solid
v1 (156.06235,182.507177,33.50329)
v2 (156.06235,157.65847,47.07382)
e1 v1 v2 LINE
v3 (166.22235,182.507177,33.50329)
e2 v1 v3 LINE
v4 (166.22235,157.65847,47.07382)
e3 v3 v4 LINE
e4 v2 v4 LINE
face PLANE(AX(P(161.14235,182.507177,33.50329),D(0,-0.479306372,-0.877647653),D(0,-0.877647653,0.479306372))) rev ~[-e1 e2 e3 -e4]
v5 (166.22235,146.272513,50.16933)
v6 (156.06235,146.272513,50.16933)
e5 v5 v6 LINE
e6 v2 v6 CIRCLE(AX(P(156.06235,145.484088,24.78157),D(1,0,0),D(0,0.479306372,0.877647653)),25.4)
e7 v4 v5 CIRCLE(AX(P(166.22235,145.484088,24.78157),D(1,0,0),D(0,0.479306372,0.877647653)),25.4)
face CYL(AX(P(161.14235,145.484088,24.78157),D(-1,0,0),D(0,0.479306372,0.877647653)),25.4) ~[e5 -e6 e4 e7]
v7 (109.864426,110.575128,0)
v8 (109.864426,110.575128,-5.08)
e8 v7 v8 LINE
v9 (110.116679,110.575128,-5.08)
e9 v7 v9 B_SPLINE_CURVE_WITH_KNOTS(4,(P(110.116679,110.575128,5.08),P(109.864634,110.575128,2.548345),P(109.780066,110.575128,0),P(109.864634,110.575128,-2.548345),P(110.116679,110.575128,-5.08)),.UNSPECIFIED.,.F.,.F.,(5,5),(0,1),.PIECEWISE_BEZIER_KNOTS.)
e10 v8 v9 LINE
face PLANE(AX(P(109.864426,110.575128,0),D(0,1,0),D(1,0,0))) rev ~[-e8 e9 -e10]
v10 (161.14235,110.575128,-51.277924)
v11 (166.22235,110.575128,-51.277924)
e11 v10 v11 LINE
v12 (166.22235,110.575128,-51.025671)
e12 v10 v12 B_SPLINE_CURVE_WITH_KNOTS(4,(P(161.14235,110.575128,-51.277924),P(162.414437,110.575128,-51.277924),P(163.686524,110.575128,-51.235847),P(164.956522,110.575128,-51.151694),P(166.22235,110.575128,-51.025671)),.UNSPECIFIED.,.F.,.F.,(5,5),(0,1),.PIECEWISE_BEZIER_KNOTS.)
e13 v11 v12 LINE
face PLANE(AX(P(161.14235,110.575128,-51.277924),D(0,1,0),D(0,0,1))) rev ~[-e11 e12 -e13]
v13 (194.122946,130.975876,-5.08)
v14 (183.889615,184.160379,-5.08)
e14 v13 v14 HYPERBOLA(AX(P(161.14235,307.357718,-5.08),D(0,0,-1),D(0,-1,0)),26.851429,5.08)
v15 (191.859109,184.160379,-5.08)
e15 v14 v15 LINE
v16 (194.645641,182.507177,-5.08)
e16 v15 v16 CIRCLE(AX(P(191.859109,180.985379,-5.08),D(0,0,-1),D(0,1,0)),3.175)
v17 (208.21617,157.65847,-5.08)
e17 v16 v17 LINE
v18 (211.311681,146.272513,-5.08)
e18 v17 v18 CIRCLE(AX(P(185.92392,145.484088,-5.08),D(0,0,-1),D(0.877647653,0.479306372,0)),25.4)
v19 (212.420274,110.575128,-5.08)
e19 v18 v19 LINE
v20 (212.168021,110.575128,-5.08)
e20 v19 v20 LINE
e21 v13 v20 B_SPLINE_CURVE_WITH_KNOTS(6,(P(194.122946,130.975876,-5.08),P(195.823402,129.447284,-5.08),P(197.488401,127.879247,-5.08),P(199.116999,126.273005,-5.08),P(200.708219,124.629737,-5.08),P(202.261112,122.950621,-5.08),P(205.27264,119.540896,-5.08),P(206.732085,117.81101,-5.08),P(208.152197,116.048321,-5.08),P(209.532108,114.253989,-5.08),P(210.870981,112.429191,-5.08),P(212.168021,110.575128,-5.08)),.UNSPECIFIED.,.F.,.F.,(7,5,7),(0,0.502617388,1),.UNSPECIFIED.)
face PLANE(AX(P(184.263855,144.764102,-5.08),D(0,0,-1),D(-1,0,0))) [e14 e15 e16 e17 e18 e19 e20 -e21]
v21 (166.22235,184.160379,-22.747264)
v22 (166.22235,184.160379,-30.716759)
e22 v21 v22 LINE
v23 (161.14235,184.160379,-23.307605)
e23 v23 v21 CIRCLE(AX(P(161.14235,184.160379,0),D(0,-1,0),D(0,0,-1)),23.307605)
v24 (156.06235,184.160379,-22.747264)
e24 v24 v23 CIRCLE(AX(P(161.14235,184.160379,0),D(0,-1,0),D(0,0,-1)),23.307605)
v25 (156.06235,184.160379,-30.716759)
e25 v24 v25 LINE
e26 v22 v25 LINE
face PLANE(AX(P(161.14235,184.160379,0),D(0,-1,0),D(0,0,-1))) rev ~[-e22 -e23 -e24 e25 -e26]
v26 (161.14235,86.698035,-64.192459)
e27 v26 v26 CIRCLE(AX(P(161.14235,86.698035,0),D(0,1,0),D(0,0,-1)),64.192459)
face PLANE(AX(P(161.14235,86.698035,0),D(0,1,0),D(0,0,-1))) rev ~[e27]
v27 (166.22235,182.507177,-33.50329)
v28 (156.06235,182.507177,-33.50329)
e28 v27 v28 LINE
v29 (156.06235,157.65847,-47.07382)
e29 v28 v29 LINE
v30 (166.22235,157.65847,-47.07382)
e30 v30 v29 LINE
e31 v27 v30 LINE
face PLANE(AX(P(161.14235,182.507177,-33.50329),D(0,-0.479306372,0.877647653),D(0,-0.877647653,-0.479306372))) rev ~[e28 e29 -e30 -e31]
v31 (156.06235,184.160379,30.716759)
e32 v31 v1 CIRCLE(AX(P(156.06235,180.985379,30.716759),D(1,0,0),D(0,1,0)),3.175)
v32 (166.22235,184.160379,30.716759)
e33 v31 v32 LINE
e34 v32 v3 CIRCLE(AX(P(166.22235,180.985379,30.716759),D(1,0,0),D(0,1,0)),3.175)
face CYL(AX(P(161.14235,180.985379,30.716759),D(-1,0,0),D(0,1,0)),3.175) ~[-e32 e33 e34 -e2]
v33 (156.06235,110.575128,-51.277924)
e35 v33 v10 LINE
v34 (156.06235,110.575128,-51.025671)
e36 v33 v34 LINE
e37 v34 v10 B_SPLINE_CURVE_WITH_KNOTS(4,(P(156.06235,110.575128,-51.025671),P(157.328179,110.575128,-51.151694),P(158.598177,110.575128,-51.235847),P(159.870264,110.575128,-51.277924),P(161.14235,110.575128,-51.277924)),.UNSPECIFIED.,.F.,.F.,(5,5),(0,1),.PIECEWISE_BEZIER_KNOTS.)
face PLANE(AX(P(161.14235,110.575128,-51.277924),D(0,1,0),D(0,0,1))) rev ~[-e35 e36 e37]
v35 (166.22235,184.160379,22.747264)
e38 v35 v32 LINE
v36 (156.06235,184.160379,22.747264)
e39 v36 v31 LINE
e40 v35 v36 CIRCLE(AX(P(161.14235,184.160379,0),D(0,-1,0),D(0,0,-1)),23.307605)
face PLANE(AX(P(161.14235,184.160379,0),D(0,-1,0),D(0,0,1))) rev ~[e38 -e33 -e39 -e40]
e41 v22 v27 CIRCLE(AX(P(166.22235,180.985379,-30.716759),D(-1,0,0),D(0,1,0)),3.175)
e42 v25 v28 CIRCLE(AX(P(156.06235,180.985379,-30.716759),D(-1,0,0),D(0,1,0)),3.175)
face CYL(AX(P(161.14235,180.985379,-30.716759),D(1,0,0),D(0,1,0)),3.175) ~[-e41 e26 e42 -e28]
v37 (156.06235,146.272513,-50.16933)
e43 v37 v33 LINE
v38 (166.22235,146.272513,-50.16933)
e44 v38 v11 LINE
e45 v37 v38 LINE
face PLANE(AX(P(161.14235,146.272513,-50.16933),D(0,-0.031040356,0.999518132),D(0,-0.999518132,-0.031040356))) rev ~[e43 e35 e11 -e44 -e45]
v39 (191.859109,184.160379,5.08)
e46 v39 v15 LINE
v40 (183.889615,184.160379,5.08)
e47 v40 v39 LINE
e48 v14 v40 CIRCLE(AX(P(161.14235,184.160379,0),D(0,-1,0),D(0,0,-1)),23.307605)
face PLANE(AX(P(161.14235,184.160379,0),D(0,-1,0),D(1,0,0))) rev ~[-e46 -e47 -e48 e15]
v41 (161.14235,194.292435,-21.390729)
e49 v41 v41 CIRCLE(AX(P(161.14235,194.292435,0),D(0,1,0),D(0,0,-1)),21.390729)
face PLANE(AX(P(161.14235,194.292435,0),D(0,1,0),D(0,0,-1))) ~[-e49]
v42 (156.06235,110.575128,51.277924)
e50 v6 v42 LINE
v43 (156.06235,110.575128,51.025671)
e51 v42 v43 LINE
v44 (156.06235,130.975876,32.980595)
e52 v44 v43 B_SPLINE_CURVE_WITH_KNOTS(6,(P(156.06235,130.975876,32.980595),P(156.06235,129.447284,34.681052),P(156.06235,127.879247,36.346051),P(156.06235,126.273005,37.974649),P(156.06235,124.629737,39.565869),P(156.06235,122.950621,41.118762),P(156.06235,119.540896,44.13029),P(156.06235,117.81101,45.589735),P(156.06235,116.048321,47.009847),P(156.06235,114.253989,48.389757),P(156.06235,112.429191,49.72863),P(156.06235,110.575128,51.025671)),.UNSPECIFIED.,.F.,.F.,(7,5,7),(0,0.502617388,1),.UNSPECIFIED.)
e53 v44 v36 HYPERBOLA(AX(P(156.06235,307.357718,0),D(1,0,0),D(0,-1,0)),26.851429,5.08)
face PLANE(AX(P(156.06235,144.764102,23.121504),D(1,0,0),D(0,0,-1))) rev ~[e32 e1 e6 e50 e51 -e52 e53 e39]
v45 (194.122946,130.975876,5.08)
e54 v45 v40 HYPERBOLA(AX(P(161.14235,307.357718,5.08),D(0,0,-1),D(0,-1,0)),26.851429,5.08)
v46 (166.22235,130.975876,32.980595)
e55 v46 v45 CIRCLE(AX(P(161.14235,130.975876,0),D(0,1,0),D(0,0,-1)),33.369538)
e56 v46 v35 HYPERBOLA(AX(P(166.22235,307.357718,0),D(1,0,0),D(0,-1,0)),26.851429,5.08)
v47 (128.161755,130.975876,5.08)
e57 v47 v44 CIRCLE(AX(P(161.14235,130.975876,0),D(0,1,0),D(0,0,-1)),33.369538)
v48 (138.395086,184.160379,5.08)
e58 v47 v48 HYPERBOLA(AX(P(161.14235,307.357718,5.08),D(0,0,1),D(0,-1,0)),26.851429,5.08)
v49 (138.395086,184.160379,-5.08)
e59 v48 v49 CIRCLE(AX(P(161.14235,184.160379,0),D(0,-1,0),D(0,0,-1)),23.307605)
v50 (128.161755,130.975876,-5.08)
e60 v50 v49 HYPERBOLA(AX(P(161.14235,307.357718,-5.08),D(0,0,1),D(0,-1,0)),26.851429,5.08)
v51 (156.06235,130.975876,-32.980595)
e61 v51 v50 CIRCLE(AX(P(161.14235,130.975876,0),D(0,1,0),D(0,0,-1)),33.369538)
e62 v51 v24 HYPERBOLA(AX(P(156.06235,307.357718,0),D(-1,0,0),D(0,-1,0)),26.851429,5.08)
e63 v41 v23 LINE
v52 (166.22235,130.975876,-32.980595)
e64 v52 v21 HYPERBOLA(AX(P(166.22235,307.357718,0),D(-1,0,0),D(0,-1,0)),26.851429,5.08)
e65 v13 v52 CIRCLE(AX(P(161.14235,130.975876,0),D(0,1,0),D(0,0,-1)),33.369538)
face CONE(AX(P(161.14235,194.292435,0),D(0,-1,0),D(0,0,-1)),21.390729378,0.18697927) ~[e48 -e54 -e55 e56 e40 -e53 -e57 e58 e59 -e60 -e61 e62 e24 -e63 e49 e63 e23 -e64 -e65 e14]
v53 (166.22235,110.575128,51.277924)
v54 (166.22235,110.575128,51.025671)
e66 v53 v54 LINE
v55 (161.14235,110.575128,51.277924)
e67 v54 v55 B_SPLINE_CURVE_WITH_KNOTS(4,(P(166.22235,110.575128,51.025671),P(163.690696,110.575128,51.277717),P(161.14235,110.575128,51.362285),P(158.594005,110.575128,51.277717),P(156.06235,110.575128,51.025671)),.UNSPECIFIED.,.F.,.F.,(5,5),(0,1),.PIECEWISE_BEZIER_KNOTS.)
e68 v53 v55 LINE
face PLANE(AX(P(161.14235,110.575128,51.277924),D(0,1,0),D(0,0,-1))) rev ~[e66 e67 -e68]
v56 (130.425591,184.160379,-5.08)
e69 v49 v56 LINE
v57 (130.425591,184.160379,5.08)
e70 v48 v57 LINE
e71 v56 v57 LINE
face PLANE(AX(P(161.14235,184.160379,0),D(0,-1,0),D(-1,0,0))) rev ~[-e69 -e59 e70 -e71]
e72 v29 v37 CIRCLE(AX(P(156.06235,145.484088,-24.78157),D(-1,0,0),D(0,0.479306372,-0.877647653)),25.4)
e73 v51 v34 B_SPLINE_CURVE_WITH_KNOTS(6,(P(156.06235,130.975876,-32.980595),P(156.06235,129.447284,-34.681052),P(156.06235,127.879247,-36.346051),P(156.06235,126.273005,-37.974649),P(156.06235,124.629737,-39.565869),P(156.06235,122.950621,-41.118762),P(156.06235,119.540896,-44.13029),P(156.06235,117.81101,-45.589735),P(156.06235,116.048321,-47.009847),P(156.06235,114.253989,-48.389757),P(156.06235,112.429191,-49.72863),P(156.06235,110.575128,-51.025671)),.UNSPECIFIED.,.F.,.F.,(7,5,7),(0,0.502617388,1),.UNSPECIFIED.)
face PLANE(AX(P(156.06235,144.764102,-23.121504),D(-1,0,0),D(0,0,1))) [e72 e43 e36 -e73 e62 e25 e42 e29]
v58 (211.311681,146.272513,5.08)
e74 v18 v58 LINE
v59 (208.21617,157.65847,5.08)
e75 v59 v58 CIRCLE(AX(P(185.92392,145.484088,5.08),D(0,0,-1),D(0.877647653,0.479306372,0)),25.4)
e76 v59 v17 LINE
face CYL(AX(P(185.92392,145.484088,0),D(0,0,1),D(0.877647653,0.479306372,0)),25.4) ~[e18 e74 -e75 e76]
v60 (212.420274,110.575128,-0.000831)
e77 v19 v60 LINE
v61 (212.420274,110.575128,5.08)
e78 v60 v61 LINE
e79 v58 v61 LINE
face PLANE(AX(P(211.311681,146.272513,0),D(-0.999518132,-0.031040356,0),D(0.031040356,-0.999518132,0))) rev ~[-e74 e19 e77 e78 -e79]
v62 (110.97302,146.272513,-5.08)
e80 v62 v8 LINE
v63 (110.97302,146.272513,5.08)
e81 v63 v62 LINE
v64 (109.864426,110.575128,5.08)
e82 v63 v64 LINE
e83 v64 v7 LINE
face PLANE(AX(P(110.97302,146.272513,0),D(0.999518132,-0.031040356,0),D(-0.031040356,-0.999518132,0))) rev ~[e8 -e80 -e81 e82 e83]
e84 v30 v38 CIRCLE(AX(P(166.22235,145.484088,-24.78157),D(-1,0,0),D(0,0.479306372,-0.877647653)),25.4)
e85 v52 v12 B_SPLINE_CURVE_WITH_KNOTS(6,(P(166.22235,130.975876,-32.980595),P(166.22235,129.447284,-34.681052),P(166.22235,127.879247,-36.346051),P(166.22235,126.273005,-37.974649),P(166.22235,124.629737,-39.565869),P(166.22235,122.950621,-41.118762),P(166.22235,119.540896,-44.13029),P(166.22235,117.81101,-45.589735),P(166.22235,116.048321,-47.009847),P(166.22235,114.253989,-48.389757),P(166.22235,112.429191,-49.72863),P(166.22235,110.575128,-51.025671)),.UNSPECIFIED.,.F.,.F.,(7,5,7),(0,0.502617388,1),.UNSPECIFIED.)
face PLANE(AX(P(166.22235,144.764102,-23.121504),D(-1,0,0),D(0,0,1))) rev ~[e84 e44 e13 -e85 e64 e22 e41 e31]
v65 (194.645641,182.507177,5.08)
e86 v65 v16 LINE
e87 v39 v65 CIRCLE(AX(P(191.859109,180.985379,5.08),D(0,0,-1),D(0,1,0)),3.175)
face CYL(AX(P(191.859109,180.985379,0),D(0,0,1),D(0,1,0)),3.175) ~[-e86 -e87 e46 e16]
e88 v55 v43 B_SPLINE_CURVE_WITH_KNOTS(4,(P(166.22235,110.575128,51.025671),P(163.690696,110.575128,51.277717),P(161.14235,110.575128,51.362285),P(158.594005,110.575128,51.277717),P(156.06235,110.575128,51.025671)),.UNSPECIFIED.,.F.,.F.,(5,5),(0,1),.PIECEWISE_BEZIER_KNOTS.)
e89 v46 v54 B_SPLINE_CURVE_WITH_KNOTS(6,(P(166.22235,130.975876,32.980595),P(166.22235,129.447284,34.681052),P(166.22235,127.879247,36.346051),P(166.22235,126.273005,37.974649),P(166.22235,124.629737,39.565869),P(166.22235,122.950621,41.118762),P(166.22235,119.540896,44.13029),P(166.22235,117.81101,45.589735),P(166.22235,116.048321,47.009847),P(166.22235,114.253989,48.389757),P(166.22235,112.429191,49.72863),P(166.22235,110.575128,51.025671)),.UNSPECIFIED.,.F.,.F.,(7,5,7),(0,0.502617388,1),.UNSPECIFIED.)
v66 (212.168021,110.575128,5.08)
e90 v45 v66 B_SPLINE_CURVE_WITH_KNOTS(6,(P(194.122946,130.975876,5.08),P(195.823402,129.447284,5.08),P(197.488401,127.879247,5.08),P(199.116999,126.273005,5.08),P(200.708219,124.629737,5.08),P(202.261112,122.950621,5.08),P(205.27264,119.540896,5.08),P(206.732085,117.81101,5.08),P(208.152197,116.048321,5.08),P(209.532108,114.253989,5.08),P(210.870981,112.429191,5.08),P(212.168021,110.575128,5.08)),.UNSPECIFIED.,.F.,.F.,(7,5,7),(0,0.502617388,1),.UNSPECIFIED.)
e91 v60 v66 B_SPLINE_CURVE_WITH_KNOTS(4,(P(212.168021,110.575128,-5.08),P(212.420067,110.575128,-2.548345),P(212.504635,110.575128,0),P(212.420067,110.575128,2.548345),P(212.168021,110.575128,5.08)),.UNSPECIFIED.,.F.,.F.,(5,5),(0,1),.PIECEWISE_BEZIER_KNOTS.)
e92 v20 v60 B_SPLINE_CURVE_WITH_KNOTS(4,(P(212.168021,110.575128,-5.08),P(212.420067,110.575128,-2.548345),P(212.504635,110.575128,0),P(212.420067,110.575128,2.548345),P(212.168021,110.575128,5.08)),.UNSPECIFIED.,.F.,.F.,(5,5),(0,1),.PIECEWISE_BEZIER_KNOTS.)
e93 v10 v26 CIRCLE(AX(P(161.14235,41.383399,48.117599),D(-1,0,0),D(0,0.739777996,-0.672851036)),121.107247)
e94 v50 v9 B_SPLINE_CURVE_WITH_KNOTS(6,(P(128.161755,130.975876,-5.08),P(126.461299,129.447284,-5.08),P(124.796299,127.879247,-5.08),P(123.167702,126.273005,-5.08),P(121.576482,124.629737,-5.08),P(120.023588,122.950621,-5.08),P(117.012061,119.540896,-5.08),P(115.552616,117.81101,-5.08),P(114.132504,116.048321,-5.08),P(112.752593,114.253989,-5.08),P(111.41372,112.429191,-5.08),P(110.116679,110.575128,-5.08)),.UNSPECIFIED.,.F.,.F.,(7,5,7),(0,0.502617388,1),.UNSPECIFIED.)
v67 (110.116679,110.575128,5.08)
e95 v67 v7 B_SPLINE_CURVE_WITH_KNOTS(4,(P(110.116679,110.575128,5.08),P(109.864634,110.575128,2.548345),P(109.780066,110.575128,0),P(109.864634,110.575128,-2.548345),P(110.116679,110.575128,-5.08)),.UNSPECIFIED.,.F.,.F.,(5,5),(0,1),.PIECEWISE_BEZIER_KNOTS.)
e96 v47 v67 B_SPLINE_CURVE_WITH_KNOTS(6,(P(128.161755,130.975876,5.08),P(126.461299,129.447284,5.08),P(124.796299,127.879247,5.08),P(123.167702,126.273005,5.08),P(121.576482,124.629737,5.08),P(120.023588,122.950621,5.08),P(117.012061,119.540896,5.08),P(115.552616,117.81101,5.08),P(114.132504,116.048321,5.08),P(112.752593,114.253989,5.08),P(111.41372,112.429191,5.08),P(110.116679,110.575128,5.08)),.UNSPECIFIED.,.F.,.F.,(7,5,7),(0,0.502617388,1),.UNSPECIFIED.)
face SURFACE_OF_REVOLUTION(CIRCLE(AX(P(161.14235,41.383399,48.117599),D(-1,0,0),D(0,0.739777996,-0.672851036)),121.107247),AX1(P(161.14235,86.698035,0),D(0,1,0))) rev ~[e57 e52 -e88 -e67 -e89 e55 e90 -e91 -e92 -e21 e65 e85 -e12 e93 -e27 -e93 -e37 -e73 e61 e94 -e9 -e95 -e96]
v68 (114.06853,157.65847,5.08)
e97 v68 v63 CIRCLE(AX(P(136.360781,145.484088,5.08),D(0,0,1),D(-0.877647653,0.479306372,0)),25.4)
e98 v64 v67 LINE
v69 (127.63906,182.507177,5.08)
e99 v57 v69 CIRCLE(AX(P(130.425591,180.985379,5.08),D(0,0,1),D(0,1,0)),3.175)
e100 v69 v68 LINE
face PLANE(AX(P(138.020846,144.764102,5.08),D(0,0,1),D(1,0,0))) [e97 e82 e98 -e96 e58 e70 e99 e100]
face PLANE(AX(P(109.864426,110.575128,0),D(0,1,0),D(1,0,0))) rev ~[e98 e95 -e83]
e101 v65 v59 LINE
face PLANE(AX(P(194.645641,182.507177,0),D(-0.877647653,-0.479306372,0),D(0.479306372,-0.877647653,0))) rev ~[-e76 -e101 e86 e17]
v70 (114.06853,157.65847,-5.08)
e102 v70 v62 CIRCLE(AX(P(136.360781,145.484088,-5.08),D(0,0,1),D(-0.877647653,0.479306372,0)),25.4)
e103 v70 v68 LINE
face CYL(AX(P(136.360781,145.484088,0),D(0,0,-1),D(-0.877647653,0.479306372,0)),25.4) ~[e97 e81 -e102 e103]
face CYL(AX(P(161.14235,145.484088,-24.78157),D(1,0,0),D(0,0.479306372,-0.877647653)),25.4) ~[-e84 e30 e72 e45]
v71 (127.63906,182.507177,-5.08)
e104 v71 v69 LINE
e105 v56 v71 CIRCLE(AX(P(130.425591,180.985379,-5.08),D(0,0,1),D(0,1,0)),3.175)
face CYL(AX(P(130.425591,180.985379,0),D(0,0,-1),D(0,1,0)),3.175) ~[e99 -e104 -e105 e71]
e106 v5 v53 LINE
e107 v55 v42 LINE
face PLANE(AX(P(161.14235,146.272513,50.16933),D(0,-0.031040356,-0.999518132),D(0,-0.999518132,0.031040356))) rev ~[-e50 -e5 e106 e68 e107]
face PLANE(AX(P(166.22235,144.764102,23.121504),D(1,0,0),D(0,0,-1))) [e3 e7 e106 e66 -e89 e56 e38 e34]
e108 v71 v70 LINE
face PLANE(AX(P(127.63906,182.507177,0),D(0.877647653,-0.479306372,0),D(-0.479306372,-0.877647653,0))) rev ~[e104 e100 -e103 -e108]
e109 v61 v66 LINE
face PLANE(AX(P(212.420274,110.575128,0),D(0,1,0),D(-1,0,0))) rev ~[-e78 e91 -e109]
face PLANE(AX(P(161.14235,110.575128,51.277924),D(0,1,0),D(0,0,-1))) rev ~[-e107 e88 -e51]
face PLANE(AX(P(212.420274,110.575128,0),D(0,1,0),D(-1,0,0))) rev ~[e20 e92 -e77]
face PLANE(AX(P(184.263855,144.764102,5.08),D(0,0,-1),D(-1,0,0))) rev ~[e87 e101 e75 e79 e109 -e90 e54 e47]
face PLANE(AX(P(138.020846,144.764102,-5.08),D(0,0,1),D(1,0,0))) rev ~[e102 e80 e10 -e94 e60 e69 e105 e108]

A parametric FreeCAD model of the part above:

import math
import FreeCAD as App
import Part
import Sketcher
Q = App.Units.Quantity

doc = App.newDocument("Part")
body = doc.addObject("PartDesign::Body", "Body")

sketch1 = doc.addObject("Sketcher::SketchObject", "Sketch")
body.addObject(sketch1)
sketch1.AttachmentSupport = (doc.XY_Plane, [""])
sketch1.MapMode = "FlatFace"
sketch1.addGeometry([
    Part.LineSegment(App.Vector(183, 194, 0), App.Vector(161, 194, 0)),
    Part.LineSegment(App.Vector(161, 194, 0), App.Vector(161, 87, 0)),
    Part.LineSegment(App.Vector(161, 87, 0), App.Vector(225, 87, 0)),
    Part.ArcOfCircle(Part.Circle(App.Vector(113, 41, 0), App.Vector(0, 0, 1), 121), math.radians(22), math.radians(48)),
    Part.LineSegment(App.Vector(195, 131, 0), App.Vector(183, 194, 0)),
], False)
sketch1.addGeometry(Part.LineSegment(App.Vector(161, 41, 0), App.Vector(161, 194, 0)), True)
sketch1.addConstraint([
    Sketcher.Constraint("Coincident", 0, 2, 1, 1),
    Sketcher.Constraint("Coincident", 1, 2, 2, 1),
    Sketcher.Constraint("Coincident", 2, 2, 3, 1),
    Sketcher.Constraint("Coincident", 3, 2, 4, 1),
    Sketcher.Constraint("Coincident", 4, 2, 0, 1),
    Sketcher.Constraint("Horizontal", 0),
    Sketcher.Constraint("Vertical", 1),
    Sketcher.Constraint("Horizontal", 2),
    Sketcher.Constraint("Vertical", 5),
    Sketcher.Constraint("Coincident", 5, 2, 0, 2),
    Sketcher.Constraint("Horizontal", 3, 3, 5, 1),
    Sketcher.Constraint("DistanceY", 1, 2, 1, 1, Q("4.236 in")),
    Sketcher.Constraint("Radius", 3, 121.107247),
    Sketcher.Constraint("DistanceX", 0, 2, 0, 1, 21.390729),
    Sketcher.Constraint("DistanceX", 2, 1, 2, 2, 64.192459),
    Sketcher.Constraint("DistanceY", -1, 1, 3, 3, 41.383399),
    Sketcher.Constraint("DistanceX", 3, 3, 0, 2, 48.117599),
    Sketcher.Constraint("DistanceX", -1, 1, 3, 3, 113.024751),
    Sketcher.Constraint("DistanceX", -1, 1, 3, 2, 194.511888),
])
revolution = doc.addObject("PartDesign::Revolution", "Revolution")
body.addObject(revolution)
revolution.Profile = sketch1
revolution.ReferenceAxis = (sketch1, ["Axis0"])
revolution.Angle = 360

sketch2 = doc.addObject("Sketcher::SketchObject", "Sketch001")
body.addObject(sketch2)
sketch2.AttachmentSupport = (doc.XY_Plane, [""])
sketch2.MapMode = "FlatFace"
sketch2.addGeometry([
    Part.LineSegment(App.Vector(161.1, 184.2, 0), App.Vector(161.1, 110.6, 0)),
    Part.LineSegment(App.Vector(161.1, 110.6, 0), App.Vector(212.4, 110.6, 0)),
    Part.LineSegment(App.Vector(212.4, 110.6, 0), App.Vector(211.3, 146.3, 0)),
    Part.ArcOfCircle(Part.Circle(App.Vector(185.9, 145.5, 0), App.Vector(0, 0, 1), 25.4), math.radians(2), math.radians(29)),
    Part.LineSegment(App.Vector(208.2, 157.7, 0), App.Vector(194.6, 182.5, 0)),
    Part.ArcOfCircle(Part.Circle(App.Vector(191.9, 181, 0), App.Vector(0, 0, 1), 3.2), math.radians(29), math.radians(90)),
    Part.LineSegment(App.Vector(191.9, 184.2, 0), App.Vector(161.1, 184.2, 0)),
], False)
sketch2.addConstraint([
    Sketcher.Constraint("Coincident", 0, 2, 1, 1),
    Sketcher.Constraint("Coincident", 1, 2, 2, 1),
    Sketcher.Constraint("Tangent", 2, 2, 3, 1),
    Sketcher.Constraint("Tangent", 3, 2, 4, 1),
    Sketcher.Constraint("Tangent", 4, 2, 5, 1),
    Sketcher.Constraint("Tangent", 5, 2, 6, 1),
    Sketcher.Constraint("Coincident", 6, 2, 0, 1),
    Sketcher.Constraint("Vertical", 0),
    Sketcher.Constraint("Horizontal", 1),
    Sketcher.Constraint("Horizontal", 6),
    Sketcher.Constraint("Radius", 3, Q("1 in")),
    Sketcher.Constraint("Radius", 5, Q("0.125 in")),
    Sketcher.Constraint("DistanceX", 0, 2, 3, 2, Q("1.8533 in")),
    Sketcher.Constraint("DistanceX", 6, 2, 6, 1, 30.716759),
    Sketcher.Constraint("DistanceY", 0, 2, 0, 1, 73.585251),
    Sketcher.Constraint("Distance", 4, 28.312851),
    Sketcher.Constraint("DistanceX", 1, 1, 1, 2, 51.277924),
    Sketcher.Constraint("DistanceX", -1, 1, 3, 3, 185.92392),
    Sketcher.Constraint("DistanceY", -1, 1, 3, 3, 145.484088),
])
pad1 = doc.addObject("PartDesign::Pad", "Pad")
body.addObject(pad1)
pad1.Profile = sketch2
pad1.Length = Q("0.4 in")
pad1.Midplane = True
doc.recompute()

datumline = doc.addObject("PartDesign::Line", "DatumLine")
body.addObject(datumline)
datumline.Placement = App.Placement(App.Vector(161.14235, 0, 0), App.Rotation(App.Vector(0, 0, 1), App.Vector(0, 1, 0)))
polarpattern = doc.addObject("PartDesign::PolarPattern", "PolarPattern")
body.addObject(polarpattern)
polarpattern.Originals = [pad1]
polarpattern.Axis = (datumline, [""])
polarpattern.Angle = 360
polarpattern.Occurrences = 4
body.Tip = polarpattern

doc.recompute()
